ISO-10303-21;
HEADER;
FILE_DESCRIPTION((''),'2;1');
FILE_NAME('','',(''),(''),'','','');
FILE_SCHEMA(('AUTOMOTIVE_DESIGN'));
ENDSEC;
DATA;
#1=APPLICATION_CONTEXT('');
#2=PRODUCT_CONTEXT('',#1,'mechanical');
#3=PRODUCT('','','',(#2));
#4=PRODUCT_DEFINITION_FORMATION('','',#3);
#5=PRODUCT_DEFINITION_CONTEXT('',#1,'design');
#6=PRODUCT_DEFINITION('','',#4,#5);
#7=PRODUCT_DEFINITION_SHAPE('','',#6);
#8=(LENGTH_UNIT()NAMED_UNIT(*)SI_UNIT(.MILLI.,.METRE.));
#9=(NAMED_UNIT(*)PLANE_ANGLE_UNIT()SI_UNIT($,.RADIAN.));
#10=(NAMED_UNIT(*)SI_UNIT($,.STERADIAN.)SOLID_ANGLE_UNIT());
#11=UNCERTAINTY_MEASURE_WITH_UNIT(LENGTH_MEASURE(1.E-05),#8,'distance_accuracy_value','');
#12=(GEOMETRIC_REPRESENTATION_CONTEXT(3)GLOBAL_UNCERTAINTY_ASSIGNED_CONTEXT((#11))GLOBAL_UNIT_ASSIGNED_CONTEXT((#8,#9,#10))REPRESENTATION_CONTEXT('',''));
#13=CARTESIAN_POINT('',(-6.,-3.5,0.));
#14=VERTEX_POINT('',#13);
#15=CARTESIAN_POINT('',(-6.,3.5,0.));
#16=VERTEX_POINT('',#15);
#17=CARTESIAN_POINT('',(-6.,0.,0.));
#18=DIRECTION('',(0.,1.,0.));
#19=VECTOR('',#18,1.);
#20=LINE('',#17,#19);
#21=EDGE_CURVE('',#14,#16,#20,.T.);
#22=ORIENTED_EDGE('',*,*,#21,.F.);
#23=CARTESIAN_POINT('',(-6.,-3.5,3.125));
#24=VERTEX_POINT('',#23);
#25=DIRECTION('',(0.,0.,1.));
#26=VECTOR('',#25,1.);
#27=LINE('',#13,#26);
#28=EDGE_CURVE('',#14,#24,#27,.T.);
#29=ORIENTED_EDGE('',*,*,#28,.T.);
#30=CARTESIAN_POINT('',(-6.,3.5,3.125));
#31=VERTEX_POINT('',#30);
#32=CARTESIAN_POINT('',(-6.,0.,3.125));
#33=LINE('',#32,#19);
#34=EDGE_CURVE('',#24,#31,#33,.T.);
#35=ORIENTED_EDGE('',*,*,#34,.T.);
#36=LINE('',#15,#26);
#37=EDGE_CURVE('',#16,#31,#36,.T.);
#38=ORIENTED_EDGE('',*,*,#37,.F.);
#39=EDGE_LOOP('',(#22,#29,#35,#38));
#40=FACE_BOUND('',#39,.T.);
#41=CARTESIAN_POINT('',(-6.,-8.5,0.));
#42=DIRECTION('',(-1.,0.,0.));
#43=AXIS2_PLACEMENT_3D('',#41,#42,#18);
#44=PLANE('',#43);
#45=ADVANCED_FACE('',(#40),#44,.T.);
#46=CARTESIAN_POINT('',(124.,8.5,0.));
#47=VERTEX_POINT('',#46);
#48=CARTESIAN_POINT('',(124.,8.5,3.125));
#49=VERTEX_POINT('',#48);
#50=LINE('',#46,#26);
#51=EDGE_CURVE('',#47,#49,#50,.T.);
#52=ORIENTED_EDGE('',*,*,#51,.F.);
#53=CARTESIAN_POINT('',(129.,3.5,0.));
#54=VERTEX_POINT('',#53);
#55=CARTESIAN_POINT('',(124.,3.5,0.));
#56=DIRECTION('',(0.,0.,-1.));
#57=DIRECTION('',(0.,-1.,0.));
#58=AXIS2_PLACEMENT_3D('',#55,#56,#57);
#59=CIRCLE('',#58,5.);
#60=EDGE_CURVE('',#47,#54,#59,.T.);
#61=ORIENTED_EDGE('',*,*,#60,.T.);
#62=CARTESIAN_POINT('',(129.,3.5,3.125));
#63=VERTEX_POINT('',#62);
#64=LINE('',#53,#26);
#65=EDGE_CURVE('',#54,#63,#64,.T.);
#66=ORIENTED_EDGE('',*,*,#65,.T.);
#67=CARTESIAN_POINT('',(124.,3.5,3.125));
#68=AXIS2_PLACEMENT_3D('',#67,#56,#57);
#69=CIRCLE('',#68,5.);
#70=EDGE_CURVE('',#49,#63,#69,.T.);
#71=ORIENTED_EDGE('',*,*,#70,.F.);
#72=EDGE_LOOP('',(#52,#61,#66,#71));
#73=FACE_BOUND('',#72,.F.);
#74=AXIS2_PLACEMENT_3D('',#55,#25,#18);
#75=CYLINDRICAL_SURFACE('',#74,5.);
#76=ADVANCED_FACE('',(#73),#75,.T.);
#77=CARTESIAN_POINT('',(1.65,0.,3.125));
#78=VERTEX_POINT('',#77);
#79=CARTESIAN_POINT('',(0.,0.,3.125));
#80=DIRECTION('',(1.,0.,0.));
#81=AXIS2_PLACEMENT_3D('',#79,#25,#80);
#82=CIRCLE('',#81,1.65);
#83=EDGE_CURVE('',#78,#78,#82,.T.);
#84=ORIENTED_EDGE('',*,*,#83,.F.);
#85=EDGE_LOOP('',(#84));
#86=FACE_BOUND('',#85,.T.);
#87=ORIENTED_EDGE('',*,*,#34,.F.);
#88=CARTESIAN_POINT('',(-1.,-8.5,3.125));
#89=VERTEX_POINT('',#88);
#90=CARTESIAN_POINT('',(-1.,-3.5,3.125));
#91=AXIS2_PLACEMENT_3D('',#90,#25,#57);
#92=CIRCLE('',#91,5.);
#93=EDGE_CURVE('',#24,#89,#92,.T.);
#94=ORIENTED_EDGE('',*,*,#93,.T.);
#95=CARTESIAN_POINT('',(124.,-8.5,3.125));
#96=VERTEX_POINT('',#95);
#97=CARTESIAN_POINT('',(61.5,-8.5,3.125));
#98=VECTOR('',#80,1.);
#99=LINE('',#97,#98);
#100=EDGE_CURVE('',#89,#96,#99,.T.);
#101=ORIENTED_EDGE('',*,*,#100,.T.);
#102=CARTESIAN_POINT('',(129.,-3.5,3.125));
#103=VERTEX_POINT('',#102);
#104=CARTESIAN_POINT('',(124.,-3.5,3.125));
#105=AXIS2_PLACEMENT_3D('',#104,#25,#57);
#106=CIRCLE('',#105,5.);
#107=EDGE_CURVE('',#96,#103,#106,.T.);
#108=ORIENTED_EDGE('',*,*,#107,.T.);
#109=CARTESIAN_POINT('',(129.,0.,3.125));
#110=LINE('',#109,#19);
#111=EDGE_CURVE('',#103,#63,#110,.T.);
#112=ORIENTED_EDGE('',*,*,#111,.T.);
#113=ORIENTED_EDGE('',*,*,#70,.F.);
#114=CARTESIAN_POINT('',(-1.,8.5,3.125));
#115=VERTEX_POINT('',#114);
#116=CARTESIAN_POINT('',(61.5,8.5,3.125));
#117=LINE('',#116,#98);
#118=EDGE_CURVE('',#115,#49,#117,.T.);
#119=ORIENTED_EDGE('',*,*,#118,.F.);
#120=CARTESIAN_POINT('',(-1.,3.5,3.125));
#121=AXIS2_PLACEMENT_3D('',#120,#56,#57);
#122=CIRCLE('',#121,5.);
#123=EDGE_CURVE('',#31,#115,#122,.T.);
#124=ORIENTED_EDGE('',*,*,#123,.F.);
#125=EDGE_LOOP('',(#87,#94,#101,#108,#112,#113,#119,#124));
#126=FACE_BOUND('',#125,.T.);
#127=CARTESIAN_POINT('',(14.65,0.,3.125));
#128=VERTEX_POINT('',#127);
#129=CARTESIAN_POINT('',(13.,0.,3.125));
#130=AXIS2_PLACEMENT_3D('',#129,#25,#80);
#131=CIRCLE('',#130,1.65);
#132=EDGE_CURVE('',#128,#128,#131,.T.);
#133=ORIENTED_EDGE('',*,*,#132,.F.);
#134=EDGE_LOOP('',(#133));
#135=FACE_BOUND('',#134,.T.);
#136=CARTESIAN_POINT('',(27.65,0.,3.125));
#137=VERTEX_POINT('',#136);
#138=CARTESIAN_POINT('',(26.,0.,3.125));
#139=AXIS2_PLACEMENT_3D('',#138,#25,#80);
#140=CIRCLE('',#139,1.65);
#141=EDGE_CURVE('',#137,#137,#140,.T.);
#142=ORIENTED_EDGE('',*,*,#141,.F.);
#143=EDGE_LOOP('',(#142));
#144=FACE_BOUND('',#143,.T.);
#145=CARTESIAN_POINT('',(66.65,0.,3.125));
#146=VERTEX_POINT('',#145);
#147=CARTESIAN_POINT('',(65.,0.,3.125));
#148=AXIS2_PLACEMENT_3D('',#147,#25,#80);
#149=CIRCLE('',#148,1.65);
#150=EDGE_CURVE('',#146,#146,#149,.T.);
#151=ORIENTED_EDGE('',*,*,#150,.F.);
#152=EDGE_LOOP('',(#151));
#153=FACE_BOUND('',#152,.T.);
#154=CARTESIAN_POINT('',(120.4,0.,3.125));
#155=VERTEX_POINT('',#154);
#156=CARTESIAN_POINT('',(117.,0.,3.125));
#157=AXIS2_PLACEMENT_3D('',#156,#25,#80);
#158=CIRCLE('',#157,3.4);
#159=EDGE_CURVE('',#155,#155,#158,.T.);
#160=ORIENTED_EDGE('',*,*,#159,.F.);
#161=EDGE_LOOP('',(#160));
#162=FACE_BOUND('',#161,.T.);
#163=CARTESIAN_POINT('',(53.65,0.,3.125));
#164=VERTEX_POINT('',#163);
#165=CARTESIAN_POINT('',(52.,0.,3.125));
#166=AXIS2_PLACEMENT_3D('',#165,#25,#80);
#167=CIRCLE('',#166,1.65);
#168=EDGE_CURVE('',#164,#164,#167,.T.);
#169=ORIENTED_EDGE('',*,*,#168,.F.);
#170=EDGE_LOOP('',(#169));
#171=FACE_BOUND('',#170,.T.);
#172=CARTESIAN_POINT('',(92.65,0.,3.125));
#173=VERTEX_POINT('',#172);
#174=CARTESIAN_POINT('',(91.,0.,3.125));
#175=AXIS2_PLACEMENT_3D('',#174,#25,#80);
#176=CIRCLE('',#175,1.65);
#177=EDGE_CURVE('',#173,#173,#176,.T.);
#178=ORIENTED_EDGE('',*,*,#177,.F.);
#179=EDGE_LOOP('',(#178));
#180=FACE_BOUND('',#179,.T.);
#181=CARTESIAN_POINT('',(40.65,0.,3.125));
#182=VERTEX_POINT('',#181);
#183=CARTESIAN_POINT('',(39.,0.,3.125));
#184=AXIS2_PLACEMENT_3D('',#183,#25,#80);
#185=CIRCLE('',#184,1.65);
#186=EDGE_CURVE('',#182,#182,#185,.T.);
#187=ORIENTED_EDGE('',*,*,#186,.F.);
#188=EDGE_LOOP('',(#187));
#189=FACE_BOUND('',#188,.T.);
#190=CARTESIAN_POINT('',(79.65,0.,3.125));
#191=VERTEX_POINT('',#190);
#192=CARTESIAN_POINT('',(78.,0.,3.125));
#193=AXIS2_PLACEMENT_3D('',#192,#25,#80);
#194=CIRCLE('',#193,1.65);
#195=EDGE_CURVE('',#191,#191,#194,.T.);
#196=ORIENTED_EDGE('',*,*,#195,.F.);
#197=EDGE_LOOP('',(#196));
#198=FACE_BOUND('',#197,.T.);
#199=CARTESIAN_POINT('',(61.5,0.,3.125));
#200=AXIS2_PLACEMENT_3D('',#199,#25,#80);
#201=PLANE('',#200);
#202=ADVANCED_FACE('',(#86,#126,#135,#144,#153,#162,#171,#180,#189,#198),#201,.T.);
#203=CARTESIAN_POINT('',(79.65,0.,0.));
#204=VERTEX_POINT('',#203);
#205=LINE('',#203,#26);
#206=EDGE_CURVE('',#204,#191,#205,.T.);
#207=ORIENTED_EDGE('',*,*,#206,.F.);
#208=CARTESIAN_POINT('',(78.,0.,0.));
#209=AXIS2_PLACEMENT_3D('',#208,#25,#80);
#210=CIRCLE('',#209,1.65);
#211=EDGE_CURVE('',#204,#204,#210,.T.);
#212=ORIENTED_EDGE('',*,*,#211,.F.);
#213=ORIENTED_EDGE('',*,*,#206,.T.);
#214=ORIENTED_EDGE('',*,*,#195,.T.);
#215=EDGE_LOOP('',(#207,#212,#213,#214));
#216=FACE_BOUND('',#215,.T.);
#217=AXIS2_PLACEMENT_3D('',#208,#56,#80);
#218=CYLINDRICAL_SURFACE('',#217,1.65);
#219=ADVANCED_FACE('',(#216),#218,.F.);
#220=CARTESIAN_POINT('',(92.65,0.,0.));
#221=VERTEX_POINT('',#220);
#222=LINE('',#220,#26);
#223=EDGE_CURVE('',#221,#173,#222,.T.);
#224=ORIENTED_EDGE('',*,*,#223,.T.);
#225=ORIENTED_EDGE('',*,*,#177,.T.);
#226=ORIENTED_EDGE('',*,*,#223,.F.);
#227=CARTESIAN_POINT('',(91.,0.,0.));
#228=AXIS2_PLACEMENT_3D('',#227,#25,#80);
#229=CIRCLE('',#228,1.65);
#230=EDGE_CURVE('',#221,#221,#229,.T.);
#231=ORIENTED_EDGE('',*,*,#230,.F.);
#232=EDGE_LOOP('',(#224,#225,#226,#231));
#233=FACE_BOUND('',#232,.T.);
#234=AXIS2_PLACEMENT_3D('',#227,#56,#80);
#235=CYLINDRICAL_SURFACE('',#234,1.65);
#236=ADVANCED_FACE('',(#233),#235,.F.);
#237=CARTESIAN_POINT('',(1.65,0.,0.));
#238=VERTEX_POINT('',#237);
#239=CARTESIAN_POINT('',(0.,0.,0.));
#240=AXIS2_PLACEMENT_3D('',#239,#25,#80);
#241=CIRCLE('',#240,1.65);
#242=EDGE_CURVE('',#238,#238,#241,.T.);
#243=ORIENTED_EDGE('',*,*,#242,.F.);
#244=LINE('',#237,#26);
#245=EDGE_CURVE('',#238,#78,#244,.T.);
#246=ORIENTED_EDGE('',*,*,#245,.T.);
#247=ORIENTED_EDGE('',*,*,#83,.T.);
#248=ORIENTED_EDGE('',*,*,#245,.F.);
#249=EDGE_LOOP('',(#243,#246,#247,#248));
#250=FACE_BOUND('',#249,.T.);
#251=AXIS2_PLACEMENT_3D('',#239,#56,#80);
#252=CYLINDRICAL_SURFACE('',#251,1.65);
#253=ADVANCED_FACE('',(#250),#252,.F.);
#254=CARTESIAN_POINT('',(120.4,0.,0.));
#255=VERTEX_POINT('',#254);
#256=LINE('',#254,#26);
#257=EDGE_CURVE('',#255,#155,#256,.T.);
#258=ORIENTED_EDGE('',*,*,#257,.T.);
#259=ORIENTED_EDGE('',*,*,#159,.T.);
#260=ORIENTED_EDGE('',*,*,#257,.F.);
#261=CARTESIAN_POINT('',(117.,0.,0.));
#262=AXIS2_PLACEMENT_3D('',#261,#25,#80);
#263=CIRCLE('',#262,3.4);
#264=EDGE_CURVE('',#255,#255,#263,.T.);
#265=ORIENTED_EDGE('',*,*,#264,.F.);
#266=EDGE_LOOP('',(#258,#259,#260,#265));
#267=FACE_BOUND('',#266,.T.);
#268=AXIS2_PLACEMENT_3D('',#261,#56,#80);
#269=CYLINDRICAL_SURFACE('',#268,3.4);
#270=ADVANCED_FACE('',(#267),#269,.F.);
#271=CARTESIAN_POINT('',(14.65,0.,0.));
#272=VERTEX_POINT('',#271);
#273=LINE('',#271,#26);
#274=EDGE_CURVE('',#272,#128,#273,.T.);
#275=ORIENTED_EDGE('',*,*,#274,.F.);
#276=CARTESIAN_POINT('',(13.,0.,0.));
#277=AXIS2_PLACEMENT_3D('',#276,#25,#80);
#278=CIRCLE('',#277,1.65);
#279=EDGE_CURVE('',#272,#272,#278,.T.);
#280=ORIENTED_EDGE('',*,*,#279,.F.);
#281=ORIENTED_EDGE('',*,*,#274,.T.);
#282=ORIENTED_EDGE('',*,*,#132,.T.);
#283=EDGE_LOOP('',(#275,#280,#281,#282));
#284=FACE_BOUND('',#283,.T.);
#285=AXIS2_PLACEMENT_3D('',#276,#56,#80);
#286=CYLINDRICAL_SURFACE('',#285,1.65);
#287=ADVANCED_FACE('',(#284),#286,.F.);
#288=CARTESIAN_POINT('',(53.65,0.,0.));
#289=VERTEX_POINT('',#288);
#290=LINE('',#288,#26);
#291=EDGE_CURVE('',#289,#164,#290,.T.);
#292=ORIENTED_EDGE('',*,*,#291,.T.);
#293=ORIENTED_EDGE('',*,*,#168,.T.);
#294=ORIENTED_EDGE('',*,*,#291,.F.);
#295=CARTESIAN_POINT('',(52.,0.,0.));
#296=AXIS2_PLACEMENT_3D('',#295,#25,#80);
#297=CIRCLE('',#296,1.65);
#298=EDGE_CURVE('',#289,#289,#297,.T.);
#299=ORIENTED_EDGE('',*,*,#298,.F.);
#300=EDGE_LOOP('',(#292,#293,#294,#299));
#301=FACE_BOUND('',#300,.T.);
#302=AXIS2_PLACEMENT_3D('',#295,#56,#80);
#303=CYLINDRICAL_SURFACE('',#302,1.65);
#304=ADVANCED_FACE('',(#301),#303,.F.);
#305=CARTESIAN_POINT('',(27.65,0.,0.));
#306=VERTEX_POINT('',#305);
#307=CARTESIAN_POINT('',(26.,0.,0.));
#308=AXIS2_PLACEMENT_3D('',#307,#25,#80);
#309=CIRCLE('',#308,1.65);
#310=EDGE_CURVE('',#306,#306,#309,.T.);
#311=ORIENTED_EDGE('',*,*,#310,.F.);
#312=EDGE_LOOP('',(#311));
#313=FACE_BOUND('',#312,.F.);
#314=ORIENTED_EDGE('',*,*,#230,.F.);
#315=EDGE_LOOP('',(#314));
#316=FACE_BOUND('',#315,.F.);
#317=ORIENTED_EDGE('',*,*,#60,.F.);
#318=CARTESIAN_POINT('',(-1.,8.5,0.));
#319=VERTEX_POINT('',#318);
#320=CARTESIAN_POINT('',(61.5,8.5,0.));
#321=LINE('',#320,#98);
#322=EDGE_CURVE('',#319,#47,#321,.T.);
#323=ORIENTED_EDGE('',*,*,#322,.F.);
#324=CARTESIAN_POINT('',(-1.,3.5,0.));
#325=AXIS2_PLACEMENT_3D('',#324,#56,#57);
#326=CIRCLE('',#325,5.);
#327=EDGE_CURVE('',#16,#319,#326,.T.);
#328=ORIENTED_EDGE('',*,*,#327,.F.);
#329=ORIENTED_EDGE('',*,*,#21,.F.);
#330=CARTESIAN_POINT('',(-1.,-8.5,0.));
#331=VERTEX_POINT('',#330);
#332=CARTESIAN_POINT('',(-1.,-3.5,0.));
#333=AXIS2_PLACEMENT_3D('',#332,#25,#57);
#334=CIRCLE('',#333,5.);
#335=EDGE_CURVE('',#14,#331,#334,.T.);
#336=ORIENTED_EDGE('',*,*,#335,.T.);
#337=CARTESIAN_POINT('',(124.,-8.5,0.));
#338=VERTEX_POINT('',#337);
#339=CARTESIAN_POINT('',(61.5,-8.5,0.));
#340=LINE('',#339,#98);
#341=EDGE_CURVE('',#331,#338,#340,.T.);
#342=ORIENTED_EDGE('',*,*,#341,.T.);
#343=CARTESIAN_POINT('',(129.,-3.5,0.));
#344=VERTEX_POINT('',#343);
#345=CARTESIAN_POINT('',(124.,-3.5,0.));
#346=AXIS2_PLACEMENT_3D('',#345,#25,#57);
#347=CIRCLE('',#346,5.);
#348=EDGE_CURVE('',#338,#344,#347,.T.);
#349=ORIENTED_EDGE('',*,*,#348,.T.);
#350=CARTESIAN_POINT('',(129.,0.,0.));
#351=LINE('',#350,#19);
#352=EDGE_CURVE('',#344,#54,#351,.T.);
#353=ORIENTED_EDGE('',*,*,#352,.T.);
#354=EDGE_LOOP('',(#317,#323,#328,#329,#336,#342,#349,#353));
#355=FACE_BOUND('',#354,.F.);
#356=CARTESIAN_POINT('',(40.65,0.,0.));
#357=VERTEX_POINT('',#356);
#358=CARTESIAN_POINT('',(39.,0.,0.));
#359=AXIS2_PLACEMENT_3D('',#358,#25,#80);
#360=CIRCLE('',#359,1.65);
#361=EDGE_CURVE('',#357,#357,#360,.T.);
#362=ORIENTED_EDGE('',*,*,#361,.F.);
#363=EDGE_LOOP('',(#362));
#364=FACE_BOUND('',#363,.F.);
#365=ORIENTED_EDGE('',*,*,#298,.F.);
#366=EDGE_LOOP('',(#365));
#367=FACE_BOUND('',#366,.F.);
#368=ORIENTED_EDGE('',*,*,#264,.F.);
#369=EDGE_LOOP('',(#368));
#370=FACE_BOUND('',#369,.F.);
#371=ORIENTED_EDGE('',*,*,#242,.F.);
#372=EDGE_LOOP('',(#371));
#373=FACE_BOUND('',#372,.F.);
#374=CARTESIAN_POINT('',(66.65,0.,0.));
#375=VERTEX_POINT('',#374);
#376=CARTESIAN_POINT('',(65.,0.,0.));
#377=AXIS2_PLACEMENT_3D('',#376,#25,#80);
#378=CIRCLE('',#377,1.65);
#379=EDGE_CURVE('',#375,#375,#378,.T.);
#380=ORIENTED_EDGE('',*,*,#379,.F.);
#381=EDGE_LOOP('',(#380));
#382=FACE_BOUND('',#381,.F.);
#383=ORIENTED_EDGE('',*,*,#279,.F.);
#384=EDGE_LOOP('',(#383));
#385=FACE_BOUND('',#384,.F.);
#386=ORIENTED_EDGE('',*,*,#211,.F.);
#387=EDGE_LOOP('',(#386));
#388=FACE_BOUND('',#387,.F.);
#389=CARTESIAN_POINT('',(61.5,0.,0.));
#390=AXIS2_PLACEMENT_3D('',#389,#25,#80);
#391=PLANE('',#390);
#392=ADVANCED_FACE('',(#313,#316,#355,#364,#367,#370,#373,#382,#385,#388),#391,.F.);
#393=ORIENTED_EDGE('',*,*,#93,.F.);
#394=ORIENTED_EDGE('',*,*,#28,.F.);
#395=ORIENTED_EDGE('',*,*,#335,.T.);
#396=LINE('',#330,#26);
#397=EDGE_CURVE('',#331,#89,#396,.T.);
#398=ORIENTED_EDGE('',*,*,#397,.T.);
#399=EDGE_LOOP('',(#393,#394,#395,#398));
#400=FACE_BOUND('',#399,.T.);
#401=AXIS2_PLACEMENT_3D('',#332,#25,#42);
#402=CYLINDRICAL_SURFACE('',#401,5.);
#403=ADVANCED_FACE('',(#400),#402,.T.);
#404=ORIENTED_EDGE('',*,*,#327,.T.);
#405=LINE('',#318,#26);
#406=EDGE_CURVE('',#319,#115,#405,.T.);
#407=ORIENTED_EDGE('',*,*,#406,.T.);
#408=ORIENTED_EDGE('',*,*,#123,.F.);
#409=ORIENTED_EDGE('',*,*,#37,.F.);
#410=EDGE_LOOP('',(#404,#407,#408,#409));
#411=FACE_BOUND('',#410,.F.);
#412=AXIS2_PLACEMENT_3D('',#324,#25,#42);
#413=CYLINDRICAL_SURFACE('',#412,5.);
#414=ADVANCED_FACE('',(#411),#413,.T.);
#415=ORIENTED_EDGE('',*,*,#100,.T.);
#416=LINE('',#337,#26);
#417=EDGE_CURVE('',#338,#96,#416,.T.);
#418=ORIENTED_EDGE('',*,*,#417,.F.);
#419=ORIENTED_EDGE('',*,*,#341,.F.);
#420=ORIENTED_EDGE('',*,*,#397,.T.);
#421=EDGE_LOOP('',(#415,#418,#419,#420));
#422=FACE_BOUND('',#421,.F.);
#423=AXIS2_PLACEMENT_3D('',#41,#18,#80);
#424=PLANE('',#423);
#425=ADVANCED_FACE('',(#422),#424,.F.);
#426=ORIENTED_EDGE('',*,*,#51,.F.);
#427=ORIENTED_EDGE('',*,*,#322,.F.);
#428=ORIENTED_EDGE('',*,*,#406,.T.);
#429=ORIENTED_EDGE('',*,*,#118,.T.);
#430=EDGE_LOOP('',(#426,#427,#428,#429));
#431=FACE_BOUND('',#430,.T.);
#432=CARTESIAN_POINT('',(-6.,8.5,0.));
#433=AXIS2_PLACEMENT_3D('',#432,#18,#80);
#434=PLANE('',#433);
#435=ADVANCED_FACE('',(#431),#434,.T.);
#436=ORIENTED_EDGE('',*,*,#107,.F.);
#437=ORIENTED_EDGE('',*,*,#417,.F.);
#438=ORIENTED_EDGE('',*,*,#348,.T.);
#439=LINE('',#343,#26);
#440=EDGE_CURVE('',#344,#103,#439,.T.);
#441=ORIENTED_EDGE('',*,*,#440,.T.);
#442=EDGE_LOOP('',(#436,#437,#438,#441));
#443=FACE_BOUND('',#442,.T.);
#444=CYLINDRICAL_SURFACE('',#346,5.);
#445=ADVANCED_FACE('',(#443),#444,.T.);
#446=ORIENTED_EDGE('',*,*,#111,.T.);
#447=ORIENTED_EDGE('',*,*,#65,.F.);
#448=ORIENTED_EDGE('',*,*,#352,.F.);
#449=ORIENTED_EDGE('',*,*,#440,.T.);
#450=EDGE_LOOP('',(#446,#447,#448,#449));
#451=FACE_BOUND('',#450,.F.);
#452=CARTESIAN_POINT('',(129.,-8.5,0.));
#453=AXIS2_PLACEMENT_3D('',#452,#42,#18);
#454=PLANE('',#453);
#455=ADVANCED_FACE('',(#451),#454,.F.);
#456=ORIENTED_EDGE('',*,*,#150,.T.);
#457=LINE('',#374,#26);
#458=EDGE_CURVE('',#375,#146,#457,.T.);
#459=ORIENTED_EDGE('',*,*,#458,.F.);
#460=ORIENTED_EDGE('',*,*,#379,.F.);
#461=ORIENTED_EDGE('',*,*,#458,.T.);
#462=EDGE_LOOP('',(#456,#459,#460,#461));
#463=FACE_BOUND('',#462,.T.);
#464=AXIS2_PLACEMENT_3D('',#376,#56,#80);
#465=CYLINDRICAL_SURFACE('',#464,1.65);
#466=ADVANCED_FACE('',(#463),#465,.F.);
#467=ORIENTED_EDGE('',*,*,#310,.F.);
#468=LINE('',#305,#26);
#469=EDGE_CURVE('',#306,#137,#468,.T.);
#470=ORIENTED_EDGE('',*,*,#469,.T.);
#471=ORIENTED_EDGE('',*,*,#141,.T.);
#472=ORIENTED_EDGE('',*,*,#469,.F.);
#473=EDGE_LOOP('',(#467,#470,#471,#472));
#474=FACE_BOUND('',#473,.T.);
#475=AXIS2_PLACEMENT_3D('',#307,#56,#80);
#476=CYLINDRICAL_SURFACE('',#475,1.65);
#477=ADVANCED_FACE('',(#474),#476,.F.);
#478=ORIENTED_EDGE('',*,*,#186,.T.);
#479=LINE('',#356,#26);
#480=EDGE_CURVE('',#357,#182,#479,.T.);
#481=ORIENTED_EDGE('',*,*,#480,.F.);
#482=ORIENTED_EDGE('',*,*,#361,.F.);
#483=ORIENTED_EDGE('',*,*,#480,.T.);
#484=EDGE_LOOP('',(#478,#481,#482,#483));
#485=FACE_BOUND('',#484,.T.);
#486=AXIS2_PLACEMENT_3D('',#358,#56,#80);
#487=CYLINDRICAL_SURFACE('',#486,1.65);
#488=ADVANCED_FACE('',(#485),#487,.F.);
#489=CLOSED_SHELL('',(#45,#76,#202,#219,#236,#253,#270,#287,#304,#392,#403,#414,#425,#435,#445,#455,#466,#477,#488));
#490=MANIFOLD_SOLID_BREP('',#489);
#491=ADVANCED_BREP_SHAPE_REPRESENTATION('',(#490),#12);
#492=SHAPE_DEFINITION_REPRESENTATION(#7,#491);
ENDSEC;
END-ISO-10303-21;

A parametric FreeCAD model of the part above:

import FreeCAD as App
import Part
import Sketcher


def edges_at(feature, points):
    """Names of the edges that pass closest to the given points."""
    edges = feature.Shape.Edges
    near = lambda p: min(range(len(edges)), key=lambda i: edges[i].distToShape(Part.Vertex(*p))[0])
    return sorted({f"Edge{near(p) + 1}" for p in points})


def add_polygon(sketch, points):
    """Adds a closed chain of lines whose ends are joined by coincident constraints."""
    first, n = sketch.GeometryCount, len(points)
    for a, b in zip(points, points[1:] + points[:1]):
        sketch.addGeometry(Part.LineSegment(App.Vector(*a, 0), App.Vector(*b, 0)), False)
    for i in range(n):
        sketch.addConstraint(Sketcher.Constraint("Coincident", first + i, 2, first + (i + 1) % n, 1))

doc = App.newDocument("Part")
body = doc.addObject("PartDesign::Body", "Body")

sketch1 = body.newObject("Sketcher::SketchObject", "Sketch")
sketch1.AttachmentSupport = (doc.getObject("XY_Plane"), [""])
sketch1.MapMode = "FlatFace"
add_polygon(sketch1, [(-6, 8.5), (-6, -8.5), (129, -8.5), (129, 8.5)])
sketch1.addGeometry(Part.Circle(App.Vector(0, 0, 0), App.Vector(0, 0, 1), 1.6), False)
sketch1.addGeometry(Part.Circle(App.Vector(13, 0, 0), App.Vector(0, 0, 1), 1.6), False)
sketch1.addGeometry(Part.Circle(App.Vector(26, 0, 0), App.Vector(0, 0, 1), 1.6), False)
sketch1.addGeometry(Part.Circle(App.Vector(39, 0, 0), App.Vector(0, 0, 1), 1.6), False)
sketch1.addGeometry(Part.Circle(App.Vector(52, 0, 0), App.Vector(0, 0, 1), 1.6), False)
sketch1.addGeometry(Part.Circle(App.Vector(65, 0, 0), App.Vector(0, 0, 1), 1.6), False)
sketch1.addGeometry(Part.Circle(App.Vector(78, 0, 0), App.Vector(0, 0, 1), 1.6), False)
sketch1.addGeometry(Part.Circle(App.Vector(91, 0, 0), App.Vector(0, 0, 1), 1.6), False)
sketch1.addGeometry(Part.Circle(App.Vector(117, 0, 0), App.Vector(0, 0, 1), 3.4), False)
sketch1.addConstraint([
    Sketcher.Constraint("Vertical", 0),
    Sketcher.Constraint("Horizontal", 1),
    Sketcher.Constraint("Vertical", 2),
    Sketcher.Constraint("Horizontal", 3),
    Sketcher.Constraint("Coincident", 4, 3, -1, 1),
    Sketcher.Constraint("Equal", 4, 5),
    Sketcher.Constraint("Equal", 5, 6),
    Sketcher.Constraint("Equal", 6, 7),
    Sketcher.Constraint("Equal", 7, 8),
    Sketcher.Constraint("Equal", 8, 9),
    Sketcher.Constraint("Equal", 9, 10),
    Sketcher.Constraint("Equal", 10, 11),
    Sketcher.Constraint("PointOnObject", 5, 3, -1),
    Sketcher.Constraint("PointOnObject", 6, 3, -1),
    Sketcher.Constraint("PointOnObject", 7, 3, -1),
    Sketcher.Constraint("PointOnObject", 8, 3, -1),
    Sketcher.Constraint("PointOnObject", 9, 3, -1),
    Sketcher.Constraint("PointOnObject", 10, 3, -1),
    Sketcher.Constraint("PointOnObject", 11, 3, -1),
    Sketcher.Constraint("PointOnObject", 12, 3, -1),
    Sketcher.Constraint("Diameter", 4, 3.3),
    Sketcher.Constraint("Diameter", 12, 6.8),
    Sketcher.Constraint("DistanceX", 1, 1, 1, 2, 135.0),
    Sketcher.Constraint("DistanceY", 0, 2, 0, 1, 17.0),
    Sketcher.Constraint("DistanceX", -1, 1, 5, 3, 13.0),
    Sketcher.Constraint("DistanceX", -1, 1, 6, 3, 26.0),
    Sketcher.Constraint("DistanceX", -1, 1, 7, 3, 39.0),
    Sketcher.Constraint("DistanceX", -1, 1, 8, 3, 52.0),
    Sketcher.Constraint("DistanceX", -1, 1, 9, 3, 65.0),
    Sketcher.Constraint("DistanceX", -1, 1, 10, 3, 78.0),
    Sketcher.Constraint("DistanceX", -1, 1, 11, 3, 91.0),
    Sketcher.Constraint("DistanceX", -1, 1, 12, 3, 117.0),
    Sketcher.Constraint("DistanceX", 0, 2, -1, 1, 6.0),
    Sketcher.Constraint("DistanceY", 0, 2, -1, 1, 8.5),
])
pad1 = body.newObject("PartDesign::Pad", "Pad")
pad1.Profile = sketch1
pad1.Length = 3.125
doc.recompute()

fillet = body.newObject("PartDesign::Fillet", "Fillet")
fillet.Base = (pad1, edges_at(pad1, [
    (-6, -8.5, 1.562),
    (129, -8.5, 1.562),
    (129, 8.5, 1.562),
    (-6, 8.5, 1.562),
]))
fillet.Radius = 5

doc.recompute()
